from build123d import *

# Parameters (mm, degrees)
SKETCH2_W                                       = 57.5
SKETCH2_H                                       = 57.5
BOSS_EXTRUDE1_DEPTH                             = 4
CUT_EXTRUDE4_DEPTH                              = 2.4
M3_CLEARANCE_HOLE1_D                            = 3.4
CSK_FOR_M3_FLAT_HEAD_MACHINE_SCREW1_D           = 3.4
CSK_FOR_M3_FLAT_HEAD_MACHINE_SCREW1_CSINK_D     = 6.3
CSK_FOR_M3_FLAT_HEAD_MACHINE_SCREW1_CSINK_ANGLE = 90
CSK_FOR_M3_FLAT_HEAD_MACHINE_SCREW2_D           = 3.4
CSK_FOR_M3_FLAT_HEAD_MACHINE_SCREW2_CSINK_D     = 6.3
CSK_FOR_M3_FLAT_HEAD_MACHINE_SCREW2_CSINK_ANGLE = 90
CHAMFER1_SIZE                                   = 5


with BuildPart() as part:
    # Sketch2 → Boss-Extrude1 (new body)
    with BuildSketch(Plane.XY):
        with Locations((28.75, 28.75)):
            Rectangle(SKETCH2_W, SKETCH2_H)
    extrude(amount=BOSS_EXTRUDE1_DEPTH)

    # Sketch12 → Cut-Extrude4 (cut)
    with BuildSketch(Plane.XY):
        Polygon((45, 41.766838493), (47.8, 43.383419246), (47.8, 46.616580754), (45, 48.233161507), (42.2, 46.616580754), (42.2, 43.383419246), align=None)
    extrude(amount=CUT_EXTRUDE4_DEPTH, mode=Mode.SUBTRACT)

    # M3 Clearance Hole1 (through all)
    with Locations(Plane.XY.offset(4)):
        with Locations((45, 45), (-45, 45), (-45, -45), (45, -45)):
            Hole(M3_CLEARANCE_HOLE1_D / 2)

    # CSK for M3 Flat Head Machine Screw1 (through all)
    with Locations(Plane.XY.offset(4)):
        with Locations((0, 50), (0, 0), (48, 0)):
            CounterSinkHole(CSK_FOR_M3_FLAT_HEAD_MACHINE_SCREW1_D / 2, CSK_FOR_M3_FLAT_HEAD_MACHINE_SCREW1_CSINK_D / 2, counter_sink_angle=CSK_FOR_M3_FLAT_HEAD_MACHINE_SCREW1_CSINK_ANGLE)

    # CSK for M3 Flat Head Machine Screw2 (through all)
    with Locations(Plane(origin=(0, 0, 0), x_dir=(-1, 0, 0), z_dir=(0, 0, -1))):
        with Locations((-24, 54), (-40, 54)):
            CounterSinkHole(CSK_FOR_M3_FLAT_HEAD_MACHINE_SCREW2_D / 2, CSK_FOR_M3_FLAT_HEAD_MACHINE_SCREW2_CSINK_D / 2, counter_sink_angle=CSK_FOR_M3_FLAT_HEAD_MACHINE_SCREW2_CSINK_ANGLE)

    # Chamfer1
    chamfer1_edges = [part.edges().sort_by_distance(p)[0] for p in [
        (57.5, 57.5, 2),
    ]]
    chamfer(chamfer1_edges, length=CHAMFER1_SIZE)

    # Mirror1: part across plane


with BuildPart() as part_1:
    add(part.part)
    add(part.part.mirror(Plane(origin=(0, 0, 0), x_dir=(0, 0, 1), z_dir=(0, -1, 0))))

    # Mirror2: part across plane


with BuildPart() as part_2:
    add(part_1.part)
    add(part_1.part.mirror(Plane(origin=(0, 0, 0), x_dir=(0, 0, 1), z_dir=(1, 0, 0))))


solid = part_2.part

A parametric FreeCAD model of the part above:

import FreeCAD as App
import Part
import Sketcher
from FreeCAD import Vector
Q = App.Units.Quantity


def edges_at(feature, points):
    """Names of the edges that pass closest to the given points."""
    edges = feature.Shape.Edges
    near = lambda p: min(range(len(edges)), key=lambda i: edges[i].distToShape(Part.Vertex(*p))[0])
    return sorted({f"Edge{near(p) + 1}" for p in points})


def add_polygon(sketch, points):
    """Adds a closed chain of lines whose ends are joined by coincident constraints."""
    first, n = sketch.GeometryCount, len(points)
    for a, b in zip(points, points[1:] + points[:1]):
        sketch.addGeometry(Part.LineSegment(App.Vector(*a, 0), App.Vector(*b, 0)), False)
    for i in range(n):
        sketch.addConstraint(Sketcher.Constraint("Coincident", first + i, 2, first + (i + 1) % n, 1))

doc = App.newDocument("Part")
body = doc.addObject("PartDesign::Body", "Body")

# Sketch on XY plane
sketch1 = doc.addObject("Sketcher::SketchObject", "Sketch")
body.addObject(sketch1)
sketch1.AttachmentSupport = (doc.XY_Plane, [""])
sketch1.MapMode = "FlatFace"
add_polygon(sketch1, [(0, 57.5), (0, 0), (57.5, 0), (57.5, 57.5)])  # lines 0-3
sketch1.addConstraint([
    Sketcher.Constraint("Vertical", 0),
    Sketcher.Constraint("Horizontal", 1),
    Sketcher.Constraint("Vertical", 2),
    Sketcher.Constraint("Horizontal", 3),
    Sketcher.Constraint("Coincident", 0, 2, -1, 1),
    Sketcher.Constraint("Equal", 3, 0),
    Sketcher.Constraint("DistanceX", 1, 1, 1, 2, Q("57.5 mm")),
])
pad1 = doc.addObject("PartDesign::Pad", "Pad")
body.addObject(pad1)
pad1.Profile = sketch1
pad1.Length = 4

# Sketch on XY plane
sketch2 = doc.addObject("Sketcher::SketchObject", "Sketch001")
body.addObject(sketch2)
sketch2.AttachmentSupport = (doc.XY_Plane, [""])
sketch2.MapMode = "FlatFace"
add_polygon(sketch2, [(45, 41.766838), (47.8, 43.383419), (47.8, 46.616581), (45, 48.233162), (42.2, 46.616581), (42.2, 43.383419)])  # lines 0-5
sketch2.addConstraint([
    Sketcher.Constraint("Vertical", 1),
    Sketcher.Constraint("Vertical", 4),
    Sketcher.Constraint("Parallel", 0, 3),
    Sketcher.Constraint("Parallel", 2, 5),
    Sketcher.Constraint("Horizontal", 1, 2, 3, 2),
    Sketcher.Constraint("Horizontal", 0, 2, 4, 2),
    Sketcher.Constraint("Vertical", 2, 2, 5, 2),
    Sketcher.Constraint("Angle", 0, Q("30 deg")),
    Sketcher.Constraint("DistanceX", -1, 1, 2, 2, Q("45 mm")),
    Sketcher.Constraint("DistanceX", -1, 1, 0, 2, Q("47.8 mm")),
    Sketcher.Constraint("DistanceY", 1, 1, 1, 2, Q("3.233162 mm")),
    Sketcher.Constraint("DistanceY", -1, 1, 0, 2, Q("43.383419 mm")),
])
pocket1 = doc.addObject("PartDesign::Pocket", "Pocket")
body.addObject(pocket1)
pocket1.Profile = sketch2
pocket1.Length = 2.4
pocket1.Reversed = True

# Sketch on XY plane
sketch3 = doc.addObject("Sketcher::SketchObject", "Sketch002")
body.addObject(sketch3)
sketch3.AttachmentSupport = (doc.XY_Plane, [""])
sketch3.MapMode = "FlatFace"
sketch3.AttachmentOffset = App.Placement(Vector(0, 0, 4), App.Rotation())
sketch3.addGeometry([
    Part.Circle(Vector(45, 45, 0), Vector(0, 0, 1), 1.7),
    Part.Circle(Vector(-45, 45, 0), Vector(0, 0, 1), 1.7),
    Part.Circle(Vector(-45, -45, 0), Vector(0, 0, 1), 1.7),
    Part.Circle(Vector(45, -45, 0), Vector(0, 0, 1), 1.7),
], False)
sketch3.addConstraint([
    Sketcher.Constraint("Equal", 0, 1),
    Sketcher.Constraint("Equal", 1, 2),
    Sketcher.Constraint("Equal", 2, 3),
    Sketcher.Constraint("Symmetric", 0, 3, 2, 3, -1, 1),
    Sketcher.Constraint("Symmetric", 1, 3, 3, 3, -1, 1),
    Sketcher.Constraint("Symmetric", 0, 3, 1, 3, -2),
    Sketcher.Constraint("Diameter", 0, Q("3.4 mm")),
    Sketcher.Constraint("DistanceX", -1, 1, 0, 3, Q("45 mm")),
    Sketcher.Constraint("DistanceY", -1, 1, 0, 3, Q("45 mm")),
])
doc.recompute()
hole = doc.addObject("PartDesign::Hole", "Hole")
body.addObject(hole)
hole.Profile = sketch3
hole.ThreadType = "None"
hole.Diameter = 3.4
hole.DepthType = "ThroughAll"

# Sketch on XY plane
sketch4 = doc.addObject("Sketcher::SketchObject", "Sketch003")
body.addObject(sketch4)
sketch4.AttachmentSupport = (doc.XY_Plane, [""])
sketch4.MapMode = "FlatFace"
sketch4.AttachmentOffset = App.Placement(Vector(0, 0, 4), App.Rotation())
sketch4.addGeometry([
    Part.Circle(Vector(0, 50, 0), Vector(0, 0, 1), 1.7),
    Part.Circle(Vector(0, 0, 0), Vector(0, 0, 1), 1.7),
    Part.Circle(Vector(48, 0, 0), Vector(0, 0, 1), 1.7),
], False)
sketch4.addConstraint([
    Sketcher.Constraint("Coincident", 1, 3, -1, 1),
    Sketcher.Constraint("Equal", 0, 1),
    Sketcher.Constraint("Equal", 1, 2),
    Sketcher.Constraint("PointOnObject", 0, 3, -2),
    Sketcher.Constraint("PointOnObject", 2, 3, -1),
    Sketcher.Constraint("Diameter", 0, Q("3.4 mm")),
    Sketcher.Constraint("DistanceY", -1, 1, 0, 3, Q("50 mm")),
    Sketcher.Constraint("DistanceX", -1, 1, 2, 3, Q("48 mm")),
])
doc.recompute()
hole2 = doc.addObject("PartDesign::Hole", "Hole001")
body.addObject(hole2)
hole2.Profile = sketch4
hole2.ThreadType = "None"
hole2.Diameter = 3.4
hole2.DepthType = "ThroughAll"
hole2.HoleCutType = "Countersink"
hole2.HoleCutDiameter = 6.3
hole2.HoleCutCountersinkAngle = 90

# Sketch on XY plane
sketch5 = doc.addObject("Sketcher::SketchObject", "Sketch004")
body.addObject(sketch5)
sketch5.AttachmentSupport = (doc.XY_Plane, [""])
sketch5.MapMode = "FlatFace"
sketch5.addGeometry([
    Part.Circle(Vector(24, 54, 0), Vector(0, 0, 1), 1.7),
    Part.Circle(Vector(40, 54, 0), Vector(0, 0, 1), 1.7),
], False)
sketch5.addConstraint([
    Sketcher.Constraint("Equal", 0, 1),
    Sketcher.Constraint("Horizontal", 0, 3, 1, 3),
    Sketcher.Constraint("Diameter", 0, Q("3.4 mm")),
    Sketcher.Constraint("DistanceX", -1, 1, 0, 3, Q("24 mm")),
    Sketcher.Constraint("DistanceY", -1, 1, 0, 3, Q("54 mm")),
    Sketcher.Constraint("DistanceX", -1, 1, 1, 3, Q("40 mm")),
])
doc.recompute()
hole3 = doc.addObject("PartDesign::Hole", "Hole002")
body.addObject(hole3)
hole3.Profile = sketch5
hole3.ThreadType = "None"
hole3.Diameter = 3.4
hole3.DepthType = "ThroughAll"
hole3.HoleCutType = "Countersink"
hole3.HoleCutDiameter = 6.3
hole3.HoleCutCountersinkAngle = 90
hole3.Reversed = True
doc.recompute()

chamfer = doc.addObject("PartDesign::Chamfer", "Chamfer")
body.addObject(chamfer)
chamfer.Base = (hole3, edges_at(hole3, [(57.5, 57.5, 2)]))
chamfer.Size = 5
body2 = doc.addObject("PartDesign::Body", "Body001")
doc.recompute()

body2.BaseFeature = body
doc.recompute()

mirroring = doc.addObject("Part::Mirroring", "Mirroring")
mirroring.Source = body
mirroring.Base = Vector(0, 0, 0)
mirroring.Normal = Vector(0, -1, 0)
body3 = doc.addObject("PartDesign::Body", "Body002")
body3.BaseFeature = mirroring
boolean = doc.addObject("PartDesign::Boolean", "Boolean")
body2.addObject(boolean)
boolean.Type = "Fuse"
boolean.addObjects([body3])
doc.recompute()
body4 = doc.addObject("PartDesign::Body", "Body003")
doc.recompute()

body4.BaseFeature = body2
doc.recompute()

mirroring2 = doc.addObject("Part::Mirroring", "Mirroring001")
mirroring2.Source = body2
mirroring2.Base = Vector(0, 0, 0)
mirroring2.Normal = Vector(1, 0, 0)
body5 = doc.addObject("PartDesign::Body", "Body004")
body5.BaseFeature = mirroring2
boolean2 = doc.addObject("PartDesign::Boolean", "Boolean001")
body4.addObject(boolean2)
boolean2.Type = "Fuse"
boolean2.addObjects([body5])
doc.recompute()
mirroring.Visibility = False
mirroring2.Visibility = False

doc.recompute()
